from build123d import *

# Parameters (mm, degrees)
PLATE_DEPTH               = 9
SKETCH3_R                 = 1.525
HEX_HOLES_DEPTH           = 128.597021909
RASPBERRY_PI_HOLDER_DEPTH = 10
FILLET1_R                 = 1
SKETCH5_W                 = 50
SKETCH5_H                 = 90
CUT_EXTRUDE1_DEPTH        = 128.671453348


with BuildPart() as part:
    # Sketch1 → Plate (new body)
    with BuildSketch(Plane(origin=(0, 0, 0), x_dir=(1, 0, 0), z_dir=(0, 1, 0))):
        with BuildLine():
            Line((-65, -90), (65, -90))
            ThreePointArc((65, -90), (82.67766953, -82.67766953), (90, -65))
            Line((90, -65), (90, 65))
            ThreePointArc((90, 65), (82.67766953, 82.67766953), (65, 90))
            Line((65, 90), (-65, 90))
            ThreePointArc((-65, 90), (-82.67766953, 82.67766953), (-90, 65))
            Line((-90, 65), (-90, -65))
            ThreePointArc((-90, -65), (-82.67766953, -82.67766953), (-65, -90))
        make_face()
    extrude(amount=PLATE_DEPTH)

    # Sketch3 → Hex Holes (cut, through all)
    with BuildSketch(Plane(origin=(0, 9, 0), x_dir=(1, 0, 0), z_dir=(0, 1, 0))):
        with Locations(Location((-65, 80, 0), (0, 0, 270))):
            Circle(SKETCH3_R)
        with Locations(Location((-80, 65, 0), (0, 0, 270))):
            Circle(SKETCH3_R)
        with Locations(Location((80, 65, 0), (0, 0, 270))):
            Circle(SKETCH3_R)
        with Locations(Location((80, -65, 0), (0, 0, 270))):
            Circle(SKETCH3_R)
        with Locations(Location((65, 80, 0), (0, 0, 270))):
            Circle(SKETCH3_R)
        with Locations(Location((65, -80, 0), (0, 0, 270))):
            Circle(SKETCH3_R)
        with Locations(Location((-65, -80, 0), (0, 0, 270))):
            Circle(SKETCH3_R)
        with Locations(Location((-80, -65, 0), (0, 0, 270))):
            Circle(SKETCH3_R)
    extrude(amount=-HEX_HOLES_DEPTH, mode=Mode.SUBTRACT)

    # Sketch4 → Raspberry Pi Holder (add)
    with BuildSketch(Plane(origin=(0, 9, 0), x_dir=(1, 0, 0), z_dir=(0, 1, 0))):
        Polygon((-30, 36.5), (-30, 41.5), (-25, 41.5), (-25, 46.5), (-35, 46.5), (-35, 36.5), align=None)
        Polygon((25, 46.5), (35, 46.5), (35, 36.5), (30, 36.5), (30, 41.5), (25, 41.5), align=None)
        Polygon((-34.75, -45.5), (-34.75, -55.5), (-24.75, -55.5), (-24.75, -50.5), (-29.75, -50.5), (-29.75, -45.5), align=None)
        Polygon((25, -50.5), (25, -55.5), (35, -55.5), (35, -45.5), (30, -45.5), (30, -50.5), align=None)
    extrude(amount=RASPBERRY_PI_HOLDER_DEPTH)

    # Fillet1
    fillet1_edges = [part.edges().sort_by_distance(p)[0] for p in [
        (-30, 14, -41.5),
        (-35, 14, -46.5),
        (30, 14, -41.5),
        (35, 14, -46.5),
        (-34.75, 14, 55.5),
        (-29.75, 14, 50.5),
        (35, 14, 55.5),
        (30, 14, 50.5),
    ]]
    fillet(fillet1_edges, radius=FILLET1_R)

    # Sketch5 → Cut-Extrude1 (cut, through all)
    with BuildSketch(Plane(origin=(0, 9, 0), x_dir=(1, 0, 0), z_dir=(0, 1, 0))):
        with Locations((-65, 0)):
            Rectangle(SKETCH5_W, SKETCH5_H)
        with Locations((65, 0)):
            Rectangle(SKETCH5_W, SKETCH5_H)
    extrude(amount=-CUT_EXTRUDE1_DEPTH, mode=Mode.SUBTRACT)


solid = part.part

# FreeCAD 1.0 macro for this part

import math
import FreeCAD as App
import Part
import Sketcher


def edges_at(feature, points):
    """Names of the edges that pass closest to the given points."""
    edges = feature.Shape.Edges
    near = lambda p: min(range(len(edges)), key=lambda i: edges[i].distToShape(Part.Vertex(*p))[0])
    return sorted({f"Edge{near(p) + 1}" for p in points})

doc = App.newDocument("Part")
params = doc.addObject("Spreadsheet::Sheet", "Params")
for row, (alias, value) in enumerate([
    ("sketch1_radius", "25 mm"),
    ("sketch1_width", "130 mm"),
    ("pad1_length", "9 mm"),
    ("sketch2_diameter", "3.05 mm"),
    ("sketch3_width", "5 mm"),
    ("pad2_length", "10 mm"),
    ("fillet_radius", "1 mm"),
    ("sketch4_width", "50 mm"),
    ("sketch4_height", "90 mm"),
], start=1):
    params.set(f"A{row}", alias)
    params.set(f"B{row}", "=" + value)
    params.setAlias(f"B{row}", alias)

body = doc.addObject("PartDesign::Body", "Body")

# Sketch on XZ plane
sketch1 = doc.addObject("Sketcher::SketchObject", "Sketch")
body.addObject(sketch1)
sketch1.AttachmentSupport = (doc.XZ_Plane, [""])
sketch1.MapMode = "FlatFace"
sketch1.addGeometry(Part.LineSegment(App.Vector(-65, 90, 0), App.Vector(65, 90, 0)), False)
sketch1.addGeometry(Part.ArcOfCircle(Part.Circle(App.Vector(65, 65, 0), App.Vector(0, 0, 1), 25), math.radians(0), math.radians(90)), False)
sketch1.addGeometry(Part.LineSegment(App.Vector(90, 65, 0), App.Vector(90, -65, 0)), False)
sketch1.addGeometry(Part.ArcOfCircle(Part.Circle(App.Vector(65, -65, 0), App.Vector(0, 0, 1), 25), math.radians(-90), math.radians(0)), False)
sketch1.addGeometry(Part.LineSegment(App.Vector(65, -90, 0), App.Vector(-65, -90, 0)), False)
sketch1.addGeometry(Part.ArcOfCircle(Part.Circle(App.Vector(-65, -65, 0), App.Vector(0, 0, 1), 25), math.radians(180), math.radians(270)), False)
sketch1.addGeometry(Part.LineSegment(App.Vector(-90, -65, 0), App.Vector(-90, 65, 0)), False)
sketch1.addGeometry(Part.ArcOfCircle(Part.Circle(App.Vector(-65, 65, 0), App.Vector(0, 0, 1), 25), math.radians(90), math.radians(180)), False)
sketch1.addConstraint(Sketcher.Constraint("Tangent", 0, 2, 1, 2))
sketch1.addConstraint(Sketcher.Constraint("Tangent", 1, 1, 2, 1))
sketch1.addConstraint(Sketcher.Constraint("Tangent", 2, 2, 3, 2))
sketch1.addConstraint(Sketcher.Constraint("Tangent", 3, 1, 4, 1))
sketch1.addConstraint(Sketcher.Constraint("Tangent", 4, 2, 5, 2))
sketch1.addConstraint(Sketcher.Constraint("Tangent", 5, 1, 6, 1))
sketch1.addConstraint(Sketcher.Constraint("Tangent", 6, 2, 7, 2))
sketch1.addConstraint(Sketcher.Constraint("Tangent", 7, 1, 0, 1))
sketch1.addConstraint(Sketcher.Constraint("Horizontal", 0))
sketch1.addConstraint(Sketcher.Constraint("Vertical", 2))
sketch1.addConstraint(Sketcher.Constraint("Horizontal", 4))
sketch1.addConstraint(Sketcher.Constraint("Vertical", 6))
sketch1.addConstraint(Sketcher.Constraint("Equal", 1, 3))
sketch1.addConstraint(Sketcher.Constraint("Equal", 3, 5))
sketch1.addConstraint(Sketcher.Constraint("Equal", 5, 7))
sketch1.addConstraint(Sketcher.Constraint("Symmetric", 1, 3, 5, 3, -1, 1))
sketch1.addConstraint(Sketcher.Constraint("Equal", 4, 2))
sketch1.addConstraint(Sketcher.Constraint("Radius", 1, 25.0))
sketch1.addConstraint(Sketcher.Constraint("DistanceX", 0, 1, 0, 2, 130.0))
sketch1.setExpression("Constraints[17]", "Params.sketch1_radius")
sketch1.setExpression("Constraints[18]", "Params.sketch1_width")
pad1 = doc.addObject("PartDesign::Pad", "Pad")
body.addObject(pad1)
pad1.Profile = sketch1
pad1.setExpression("Length", "Params.pad1_length")
pad1.Reversed = True

# Sketch on XZ plane
sketch2 = doc.addObject("Sketcher::SketchObject", "Sketch001")
body.addObject(sketch2)
sketch2.AttachmentSupport = (doc.XZ_Plane, [""])
sketch2.MapMode = "FlatFace"
sketch2.AttachmentOffset = App.Placement(App.Vector(0, 0, -9), App.Rotation())
sketch2.addGeometry(Part.Circle(App.Vector(-65, -80, 0), App.Vector(0, 0, 1), 1.5), False)
sketch2.addGeometry(Part.Circle(App.Vector(-80, -65, 0), App.Vector(0, 0, 1), 1.5), False)
sketch2.addGeometry(Part.Circle(App.Vector(80, -65, 0), App.Vector(0, 0, 1), 1.5), False)
sketch2.addGeometry(Part.Circle(App.Vector(80, 65, 0), App.Vector(0, 0, 1), 1.5), False)
sketch2.addGeometry(Part.Circle(App.Vector(65, -80, 0), App.Vector(0, 0, 1), 1.5), False)
sketch2.addGeometry(Part.Circle(App.Vector(65, 80, 0), App.Vector(0, 0, 1), 1.5), False)
sketch2.addGeometry(Part.Circle(App.Vector(-65, 80, 0), App.Vector(0, 0, 1), 1.5), False)
sketch2.addGeometry(Part.Circle(App.Vector(-80, 65, 0), App.Vector(0, 0, 1), 1.5), False)
sketch2.addConstraint(Sketcher.Constraint("Equal", 0, 1))
sketch2.addConstraint(Sketcher.Constraint("Equal", 1, 2))
sketch2.addConstraint(Sketcher.Constraint("Equal", 2, 3))
sketch2.addConstraint(Sketcher.Constraint("Equal", 3, 4))
sketch2.addConstraint(Sketcher.Constraint("Equal", 4, 5))
sketch2.addConstraint(Sketcher.Constraint("Equal", 5, 6))
sketch2.addConstraint(Sketcher.Constraint("Equal", 6, 7))
sketch2.addConstraint(Sketcher.Constraint("Symmetric", 1, 3, 3, 3, -1, 1))
sketch2.addConstraint(Sketcher.Constraint("Symmetric", 0, 3, 5, 3, -1, 1))
sketch2.addConstraint(Sketcher.Constraint("Symmetric", 4, 3, 6, 3, -1, 1))
sketch2.addConstraint(Sketcher.Constraint("Symmetric", 2, 3, 7, 3, -1, 1))
sketch2.addConstraint(Sketcher.Constraint("Symmetric", 1, 3, 2, 3, -2))
sketch2.addConstraint(Sketcher.Constraint("Symmetric", 0, 3, 4, 3, -2))
sketch2.addConstraint(Sketcher.Constraint("Diameter", 0, 3.05))
sketch2.addConstraint(Sketcher.Constraint("DistanceX", 0, 3, -1, 1, 65.0))
sketch2.addConstraint(Sketcher.Constraint("DistanceY", 0, 3, -1, 1, 80.0))
sketch2.addConstraint(Sketcher.Constraint("DistanceX", 1, 3, -1, 1, 80.0))
sketch2.addConstraint(Sketcher.Constraint("DistanceY", 1, 3, -1, 1, 65.0))
sketch2.setExpression("Constraints[13]", "Params.sketch2_diameter")
pocket1 = doc.addObject("PartDesign::Pocket", "Pocket")
body.addObject(pocket1)
pocket1.Profile = sketch2
pocket1.Type = "ThroughAll"
pocket1.Reversed = True

# Sketch on XZ plane
sketch3 = doc.addObject("Sketcher::SketchObject", "Sketch002")
body.addObject(sketch3)
sketch3.AttachmentSupport = (doc.XZ_Plane, [""])
sketch3.MapMode = "FlatFace"
sketch3.AttachmentOffset = App.Placement(App.Vector(0, 0, -9), App.Rotation())
sketch3.addGeometry(Part.LineSegment(App.Vector(-30, -36, 0), App.Vector(-30, -42, 0)), False)
sketch3.addGeometry(Part.LineSegment(App.Vector(-30, -42, 0), App.Vector(-25, -42, 0)), False)
sketch3.addGeometry(Part.LineSegment(App.Vector(-25, -42, 0), App.Vector(-25, -46, 0)), False)
sketch3.addGeometry(Part.LineSegment(App.Vector(-25, -46, 0), App.Vector(-35, -46, 0)), False)
sketch3.addGeometry(Part.LineSegment(App.Vector(-35, -46, 0), App.Vector(-35, -36, 0)), False)
sketch3.addGeometry(Part.LineSegment(App.Vector(-35, -36, 0), App.Vector(-30, -36, 0)), False)
sketch3.addGeometry(Part.LineSegment(App.Vector(35, -46, 0), App.Vector(25, -46, 0)), False)
sketch3.addGeometry(Part.LineSegment(App.Vector(25, -46, 0), App.Vector(25, -42, 0)), False)
sketch3.addGeometry(Part.LineSegment(App.Vector(25, -42, 0), App.Vector(30, -42, 0)), False)
sketch3.addGeometry(Part.LineSegment(App.Vector(30, -42, 0), App.Vector(30, -36, 0)), False)
sketch3.addGeometry(Part.LineSegment(App.Vector(30, -36, 0), App.Vector(35, -36, 0)), False)
sketch3.addGeometry(Part.LineSegment(App.Vector(35, -36, 0), App.Vector(35, -46, 0)), False)
sketch3.addGeometry(Part.LineSegment(App.Vector(-35, 46, 0), App.Vector(-35, 56, 0)), False)
sketch3.addGeometry(Part.LineSegment(App.Vector(-35, 56, 0), App.Vector(-25, 56, 0)), False)
sketch3.addGeometry(Part.LineSegment(App.Vector(-25, 56, 0), App.Vector(-25, 50, 0)), False)
sketch3.addGeometry(Part.LineSegment(App.Vector(-25, 50, 0), App.Vector(-30, 50, 0)), False)
sketch3.addGeometry(Part.LineSegment(App.Vector(-30, 50, 0), App.Vector(-30, 46, 0)), False)
sketch3.addGeometry(Part.LineSegment(App.Vector(-30, 46, 0), App.Vector(-35, 46, 0)), False)
sketch3.addGeometry(Part.LineSegment(App.Vector(25, 50, 0), App.Vector(25, 56, 0)), False)
sketch3.addGeometry(Part.LineSegment(App.Vector(25, 56, 0), App.Vector(35, 56, 0)), False)
sketch3.addGeometry(Part.LineSegment(App.Vector(35, 56, 0), App.Vector(35, 46, 0)), False)
sketch3.addGeometry(Part.LineSegment(App.Vector(35, 46, 0), App.Vector(30, 46, 0)), False)
sketch3.addGeometry(Part.LineSegment(App.Vector(30, 46, 0), App.Vector(30, 50, 0)), False)
sketch3.addGeometry(Part.LineSegment(App.Vector(30, 50, 0), App.Vector(25, 50, 0)), False)
sketch3.addConstraint(Sketcher.Constraint("Coincident", 0, 2, 1, 1))
sketch3.addConstraint(Sketcher.Constraint("Coincident", 1, 2, 2, 1))
sketch3.addConstraint(Sketcher.Constraint("Coincident", 2, 2, 3, 1))
sketch3.addConstraint(Sketcher.Constraint("Coincident", 3, 2, 4, 1))
sketch3.addConstraint(Sketcher.Constraint("Coincident", 4, 2, 5, 1))
sketch3.addConstraint(Sketcher.Constraint("Coincident", 5, 2, 0, 1))
sketch3.addConstraint(Sketcher.Constraint("Coincident", 6, 2, 7, 1))
sketch3.addConstraint(Sketcher.Constraint("Coincident", 7, 2, 8, 1))
sketch3.addConstraint(Sketcher.Constraint("Coincident", 8, 2, 9, 1))
sketch3.addConstraint(Sketcher.Constraint("Coincident", 9, 2, 10, 1))
sketch3.addConstraint(Sketcher.Constraint("Coincident", 10, 2, 11, 1))
sketch3.addConstraint(Sketcher.Constraint("Coincident", 11, 2, 6, 1))
sketch3.addConstraint(Sketcher.Constraint("Coincident", 12, 2, 13, 1))
sketch3.addConstraint(Sketcher.Constraint("Coincident", 13, 2, 14, 1))
sketch3.addConstraint(Sketcher.Constraint("Coincident", 14, 2, 15, 1))
sketch3.addConstraint(Sketcher.Constraint("Coincident", 15, 2, 16, 1))
sketch3.addConstraint(Sketcher.Constraint("Coincident", 16, 2, 17, 1))
sketch3.addConstraint(Sketcher.Constraint("Coincident", 17, 2, 12, 1))
sketch3.addConstraint(Sketcher.Constraint("Coincident", 18, 2, 19, 1))
sketch3.addConstraint(Sketcher.Constraint("Coincident", 19, 2, 20, 1))
sketch3.addConstraint(Sketcher.Constraint("Coincident", 20, 2, 21, 1))
sketch3.addConstraint(Sketcher.Constraint("Coincident", 21, 2, 22, 1))
sketch3.addConstraint(Sketcher.Constraint("Coincident", 22, 2, 23, 1))
sketch3.addConstraint(Sketcher.Constraint("Coincident", 23, 2, 18, 1))
sketch3.addConstraint(Sketcher.Constraint("Vertical", 0))
sketch3.addConstraint(Sketcher.Constraint("Horizontal", 1))
sketch3.addConstraint(Sketcher.Constraint("Vertical", 2))
sketch3.addConstraint(Sketcher.Constraint("Horizontal", 3))
sketch3.addConstraint(Sketcher.Constraint("Vertical", 4))
sketch3.addConstraint(Sketcher.Constraint("Horizontal", 5))
sketch3.addConstraint(Sketcher.Constraint("Horizontal", 6))
sketch3.addConstraint(Sketcher.Constraint("Vertical", 7))
sketch3.addConstraint(Sketcher.Constraint("Horizontal", 8))
sketch3.addConstraint(Sketcher.Constraint("Vertical", 9))
sketch3.addConstraint(Sketcher.Constraint("Horizontal", 10))
sketch3.addConstraint(Sketcher.Constraint("Vertical", 11))
sketch3.addConstraint(Sketcher.Constraint("Vertical", 12))
sketch3.addConstraint(Sketcher.Constraint("Horizontal", 13))
sketch3.addConstraint(Sketcher.Constraint("Vertical", 14))
sketch3.addConstraint(Sketcher.Constraint("Horizontal", 15))
sketch3.addConstraint(Sketcher.Constraint("Vertical", 16))
sketch3.addConstraint(Sketcher.Constraint("Horizontal", 17))
sketch3.addConstraint(Sketcher.Constraint("Vertical", 18))
sketch3.addConstraint(Sketcher.Constraint("Horizontal", 19))
sketch3.addConstraint(Sketcher.Constraint("Vertical", 20))
sketch3.addConstraint(Sketcher.Constraint("Horizontal", 21))
sketch3.addConstraint(Sketcher.Constraint("Vertical", 22))
sketch3.addConstraint(Sketcher.Constraint("Horizontal", 23))
sketch3.addConstraint(Sketcher.Constraint("Symmetric", 2, 2, 6, 2, -2))
sketch3.addConstraint(Sketcher.Constraint("Symmetric", 0, 2, 8, 2, -2))
sketch3.addConstraint(Sketcher.Constraint("Symmetric", 4, 2, 10, 2, -2))
sketch3.addConstraint(Sketcher.Constraint("Horizontal", 13, 2, 18, 2))
sketch3.addConstraint(Sketcher.Constraint("Horizontal", 17, 2, 20, 2))
sketch3.addConstraint(Sketcher.Constraint("Horizontal", 15, 2, 22, 2))
sketch3.addConstraint(Sketcher.Constraint("Vertical", 7, 2, 18, 2))
sketch3.addConstraint(Sketcher.Constraint("Vertical", 11, 2, 19, 2))
sketch3.addConstraint(Sketcher.Constraint("Vertical", 9, 2, 21, 2))
sketch3.addConstraint(Sketcher.Constraint("Equal", 1, 5))
sketch3.addConstraint(Sketcher.Constraint("Equal", 6, 13))
sketch3.addConstraint(Sketcher.Constraint("Equal", 10, 15))
sketch3.addConstraint(Sketcher.Constraint("Equal", 23, 0))
sketch3.addConstraint(Sketcher.Constraint("Equal", 0, 2))
sketch3.addConstraint(Sketcher.Constraint("Equal", 11, 12))
sketch3.addConstraint(Sketcher.Constraint("Equal", 9, 14))
sketch3.addConstraint(Sketcher.Constraint("DistanceX", 1, 1, 1, 2, 5.0))
sketch3.addConstraint(Sketcher.Constraint("DistanceX", 0, 2, -1, 1, 30.0))
sketch3.addConstraint(Sketcher.Constraint("DistanceY", 4, 2, 12, 2, 92.0))
sketch3.addConstraint(Sketcher.Constraint("DistanceY", 0, 2, -1, 1, 41.5))
sketch3.addConstraint(Sketcher.Constraint("DistanceX", 12, 2, -1, 1, 34.75))
sketch3.setExpression("Constraints[64]", "Params.sketch3_width")
pad2 = doc.addObject("PartDesign::Pad", "Pad001")
body.addObject(pad2)
pad2.Profile = sketch3
pad2.setExpression("Length", "Params.pad2_length")
pad2.Reversed = True
doc.recompute()

fillet = doc.addObject("PartDesign::Fillet", "Fillet")
body.addObject(fillet)
fillet.Base = (pad2, edges_at(pad2, [
    (-30, 14, -41.5),
    (-35, 14, -46.5),
    (30, 14, -41.5),
    (35, 14, -46.5),
    (-34.75, 14, 55.5),
    (-29.75, 14, 50.5),
    (35, 14, 55.5),
    (30, 14, 50.5),
]))
fillet.setExpression("Radius", "Params.fillet_radius")

# Sketch on XZ plane
sketch4 = doc.addObject("Sketcher::SketchObject", "Sketch003")
body.addObject(sketch4)
sketch4.AttachmentSupport = (doc.XZ_Plane, [""])
sketch4.MapMode = "FlatFace"
sketch4.AttachmentOffset = App.Placement(App.Vector(0, 0, -9), App.Rotation())
sketch4.addGeometry(Part.LineSegment(App.Vector(-90, -45, 0), App.Vector(-90, 45, 0)), False)
sketch4.addGeometry(Part.LineSegment(App.Vector(-90, 45, 0), App.Vector(-40, 45, 0)), False)
sketch4.addGeometry(Part.LineSegment(App.Vector(-40, 45, 0), App.Vector(-40, -45, 0)), False)
sketch4.addGeometry(Part.LineSegment(App.Vector(-40, -45, 0), App.Vector(-90, -45, 0)), False)
sketch4.addGeometry(Part.LineSegment(App.Vector(40, -45, 0), App.Vector(40, 45, 0)), False)
sketch4.addGeometry(Part.LineSegment(App.Vector(40, 45, 0), App.Vector(90, 45, 0)), False)
sketch4.addGeometry(Part.LineSegment(App.Vector(90, 45, 0), App.Vector(90, -45, 0)), False)
sketch4.addGeometry(Part.LineSegment(App.Vector(90, -45, 0), App.Vector(40, -45, 0)), False)
sketch4.addConstraint(Sketcher.Constraint("Coincident", 0, 2, 1, 1))
sketch4.addConstraint(Sketcher.Constraint("Coincident", 1, 2, 2, 1))
sketch4.addConstraint(Sketcher.Constraint("Coincident", 2, 2, 3, 1))
sketch4.addConstraint(Sketcher.Constraint("Coincident", 3, 2, 0, 1))
sketch4.addConstraint(Sketcher.Constraint("Coincident", 4, 2, 5, 1))
sketch4.addConstraint(Sketcher.Constraint("Coincident", 5, 2, 6, 1))
sketch4.addConstraint(Sketcher.Constraint("Coincident", 6, 2, 7, 1))
sketch4.addConstraint(Sketcher.Constraint("Coincident", 7, 2, 4, 1))
sketch4.addConstraint(Sketcher.Constraint("Vertical", 0))
sketch4.addConstraint(Sketcher.Constraint("Horizontal", 1))
sketch4.addConstraint(Sketcher.Constraint("Vertical", 2))
sketch4.addConstraint(Sketcher.Constraint("Horizontal", 3))
sketch4.addConstraint(Sketcher.Constraint("Vertical", 4))
sketch4.addConstraint(Sketcher.Constraint("Horizontal", 5))
sketch4.addConstraint(Sketcher.Constraint("Vertical", 6))
sketch4.addConstraint(Sketcher.Constraint("Horizontal", 7))
sketch4.addConstraint(Sketcher.Constraint("Symmetric", 2, 2, 4, 2, -1, 1))
sketch4.addConstraint(Sketcher.Constraint("Symmetric", 0, 2, 6, 2, -1, 1))
sketch4.addConstraint(Sketcher.Constraint("Horizontal", 1, 2, 4, 2))
sketch4.addConstraint(Sketcher.Constraint("DistanceX", 1, 1, 1, 2, 50.0))
sketch4.addConstraint(Sketcher.Constraint("DistanceY", 0, 1, 0, 2, 90.0))
sketch4.addConstraint(Sketcher.Constraint("DistanceX", 0, 2, -1, 1, 90.0))
sketch4.setExpression("Constraints[19]", "Params.sketch4_width")
sketch4.setExpression("Constraints[20]", "Params.sketch4_height")
pocket2 = doc.addObject("PartDesign::Pocket", "Pocket001")
body.addObject(pocket2)
pocket2.Profile = sketch4
pocket2.Type = "ThroughAll"
pocket2.Reversed = True

doc.recompute()
